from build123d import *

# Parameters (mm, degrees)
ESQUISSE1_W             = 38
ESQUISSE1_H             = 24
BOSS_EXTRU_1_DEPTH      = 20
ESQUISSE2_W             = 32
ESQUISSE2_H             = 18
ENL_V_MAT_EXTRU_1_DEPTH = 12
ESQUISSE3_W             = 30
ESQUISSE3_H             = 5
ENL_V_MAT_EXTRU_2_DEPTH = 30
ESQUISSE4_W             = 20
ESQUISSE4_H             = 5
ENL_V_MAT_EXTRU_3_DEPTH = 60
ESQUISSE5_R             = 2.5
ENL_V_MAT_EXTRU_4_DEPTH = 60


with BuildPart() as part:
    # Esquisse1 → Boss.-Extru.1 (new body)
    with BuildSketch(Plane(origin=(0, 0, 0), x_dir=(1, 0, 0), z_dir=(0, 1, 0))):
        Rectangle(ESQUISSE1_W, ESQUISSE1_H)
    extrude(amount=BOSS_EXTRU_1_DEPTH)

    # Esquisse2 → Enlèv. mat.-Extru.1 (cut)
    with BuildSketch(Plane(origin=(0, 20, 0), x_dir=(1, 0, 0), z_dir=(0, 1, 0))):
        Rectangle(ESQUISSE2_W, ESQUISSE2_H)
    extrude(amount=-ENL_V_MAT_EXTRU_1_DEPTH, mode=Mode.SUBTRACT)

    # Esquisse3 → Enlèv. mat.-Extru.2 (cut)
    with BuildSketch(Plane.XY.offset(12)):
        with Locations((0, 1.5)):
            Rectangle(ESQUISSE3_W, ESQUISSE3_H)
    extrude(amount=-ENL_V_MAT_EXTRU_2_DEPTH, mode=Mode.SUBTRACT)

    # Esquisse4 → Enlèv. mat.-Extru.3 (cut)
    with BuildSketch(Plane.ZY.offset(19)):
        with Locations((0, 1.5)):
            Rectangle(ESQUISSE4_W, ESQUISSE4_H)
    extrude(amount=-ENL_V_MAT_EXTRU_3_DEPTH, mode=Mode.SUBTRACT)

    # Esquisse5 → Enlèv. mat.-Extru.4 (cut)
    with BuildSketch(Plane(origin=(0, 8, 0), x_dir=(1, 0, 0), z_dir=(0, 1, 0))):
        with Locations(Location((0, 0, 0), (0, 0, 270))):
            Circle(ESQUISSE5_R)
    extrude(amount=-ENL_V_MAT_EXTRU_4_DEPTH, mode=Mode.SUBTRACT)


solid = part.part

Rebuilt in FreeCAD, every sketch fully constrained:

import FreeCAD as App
import Part
import Sketcher
Q = App.Units.Quantity


def add_polygon(sketch, points):
    """Adds a closed chain of lines whose ends are joined by coincident constraints."""
    first, n = sketch.GeometryCount, len(points)
    for a, b in zip(points, points[1:] + points[:1]):
        sketch.addGeometry(Part.LineSegment(App.Vector(*a, 0), App.Vector(*b, 0)), False)
    for i in range(n):
        sketch.addConstraint(Sketcher.Constraint("Coincident", first + i, 2, first + (i + 1) % n, 1))

doc = App.newDocument("Part")
body = doc.addObject("PartDesign::Body", "Body")

# Sketch on XZ plane
sketch1 = doc.addObject("Sketcher::SketchObject", "Sketch")
body.addObject(sketch1)
sketch1.AttachmentSupport = (doc.XZ_Plane, [""])
sketch1.MapMode = "FlatFace"
add_polygon(sketch1, [(-19, -12), (-19, 12), (19, 12), (19, -12)])  # lines 0-3
sketch1.addConstraint([
    Sketcher.Constraint("Vertical", 0),
    Sketcher.Constraint("Horizontal", 1),
    Sketcher.Constraint("Vertical", 2),
    Sketcher.Constraint("Horizontal", 3),
    Sketcher.Constraint("Symmetric", 0, 2, 2, 2, -1, 1),
    Sketcher.Constraint("DistanceX", 1, 1, 1, 2, Q("38 mm")),
    Sketcher.Constraint("DistanceY", 0, 1, 0, 2, Q("24 mm")),
])
pad1 = doc.addObject("PartDesign::Pad", "Pad")
body.addObject(pad1)
pad1.Profile = sketch1
pad1.Length = 20
pad1.Reversed = True

# Sketch on XZ plane
sketch2 = doc.addObject("Sketcher::SketchObject", "Sketch001")
body.addObject(sketch2)
sketch2.AttachmentSupport = (doc.XZ_Plane, [""])
sketch2.MapMode = "FlatFace"
sketch2.AttachmentOffset = App.Placement(App.Vector(0, 0, -20), App.Rotation())
add_polygon(sketch2, [(-16, -9), (-16, 9), (16, 9), (16, -9)])  # lines 0-3
sketch2.addConstraint([
    Sketcher.Constraint("Vertical", 0),
    Sketcher.Constraint("Horizontal", 1),
    Sketcher.Constraint("Vertical", 2),
    Sketcher.Constraint("Horizontal", 3),
    Sketcher.Constraint("Symmetric", 0, 2, 2, 2, -1, 1),
    Sketcher.Constraint("DistanceX", 1, 1, 1, 2, Q("32 mm")),
    Sketcher.Constraint("DistanceY", 0, 1, 0, 2, Q("18 mm")),
])
pocket1 = doc.addObject("PartDesign::Pocket", "Pocket")
body.addObject(pocket1)
pocket1.Profile = sketch2
pocket1.Length = 12
pocket1.Reversed = True

# Sketch on XY plane
sketch3 = doc.addObject("Sketcher::SketchObject", "Sketch002")
body.addObject(sketch3)
sketch3.AttachmentSupport = (doc.XY_Plane, [""])
sketch3.MapMode = "FlatFace"
sketch3.AttachmentOffset = App.Placement(App.Vector(0, 0, 12), App.Rotation())
add_polygon(sketch3, [(-15, 4), (-15, -1), (15, -1), (15, 4)])  # lines 0-3
sketch3.addConstraint([
    Sketcher.Constraint("Vertical", 0),
    Sketcher.Constraint("Horizontal", 1),
    Sketcher.Constraint("Vertical", 2),
    Sketcher.Constraint("Horizontal", 3),
    Sketcher.Constraint("DistanceX", 1, 1, 1, 2, Q("30 mm")),
    Sketcher.Constraint("DistanceY", 0, 2, 0, 1, Q("5 mm")),
    Sketcher.Constraint("DistanceX", 0, 2, -1, 1, Q("15 mm")),
    Sketcher.Constraint("DistanceY", 0, 2, -1, 1, Q("1 mm")),
])
pocket2 = doc.addObject("PartDesign::Pocket", "Pocket001")
body.addObject(pocket2)
pocket2.Profile = sketch3
pocket2.Length = 30

# Sketch on YZ plane
sketch4 = doc.addObject("Sketcher::SketchObject", "Sketch003")
body.addObject(sketch4)
sketch4.AttachmentSupport = (doc.YZ_Plane, [""])
sketch4.MapMode = "FlatFace"
sketch4.AttachmentOffset = App.Placement(App.Vector(0, 0, -19), App.Rotation())
add_polygon(sketch4, [(4, -10), (-1, -10), (-1, 10), (4, 10)])  # lines 0-3
sketch4.addConstraint([
    Sketcher.Constraint("Horizontal", 0),
    Sketcher.Constraint("Vertical", 1),
    Sketcher.Constraint("Horizontal", 2),
    Sketcher.Constraint("Vertical", 3),
    Sketcher.Constraint("DistanceX", 0, 2, 0, 1, Q("5 mm")),
    Sketcher.Constraint("DistanceY", 1, 1, 1, 2, Q("20 mm")),
    Sketcher.Constraint("DistanceX", 0, 2, -1, 1, Q("1 mm")),
    Sketcher.Constraint("DistanceY", 0, 2, -1, 1, Q("10 mm")),
])
pocket3 = doc.addObject("PartDesign::Pocket", "Pocket002")
body.addObject(pocket3)
pocket3.Profile = sketch4
pocket3.Length = 60
pocket3.Reversed = True

# Sketch on XZ plane
sketch5 = doc.addObject("Sketcher::SketchObject", "Sketch004")
body.addObject(sketch5)
sketch5.AttachmentSupport = (doc.XZ_Plane, [""])
sketch5.MapMode = "FlatFace"
sketch5.AttachmentOffset = App.Placement(App.Vector(0, 0, -8), App.Rotation())
sketch5.addGeometry(Part.Circle(App.Vector(0, 0, 0), App.Vector(0, 0, 1), 2.5), False)
sketch5.addConstraint([
    Sketcher.Constraint("Coincident", 0, 3, -1, 1),
    Sketcher.Constraint("Diameter", 0, Q("5 mm")),
])
pocket4 = doc.addObject("PartDesign::Pocket", "Pocket003")
body.addObject(pocket4)
pocket4.Profile = sketch5
pocket4.Length = 60
pocket4.Reversed = True

doc.recompute()
